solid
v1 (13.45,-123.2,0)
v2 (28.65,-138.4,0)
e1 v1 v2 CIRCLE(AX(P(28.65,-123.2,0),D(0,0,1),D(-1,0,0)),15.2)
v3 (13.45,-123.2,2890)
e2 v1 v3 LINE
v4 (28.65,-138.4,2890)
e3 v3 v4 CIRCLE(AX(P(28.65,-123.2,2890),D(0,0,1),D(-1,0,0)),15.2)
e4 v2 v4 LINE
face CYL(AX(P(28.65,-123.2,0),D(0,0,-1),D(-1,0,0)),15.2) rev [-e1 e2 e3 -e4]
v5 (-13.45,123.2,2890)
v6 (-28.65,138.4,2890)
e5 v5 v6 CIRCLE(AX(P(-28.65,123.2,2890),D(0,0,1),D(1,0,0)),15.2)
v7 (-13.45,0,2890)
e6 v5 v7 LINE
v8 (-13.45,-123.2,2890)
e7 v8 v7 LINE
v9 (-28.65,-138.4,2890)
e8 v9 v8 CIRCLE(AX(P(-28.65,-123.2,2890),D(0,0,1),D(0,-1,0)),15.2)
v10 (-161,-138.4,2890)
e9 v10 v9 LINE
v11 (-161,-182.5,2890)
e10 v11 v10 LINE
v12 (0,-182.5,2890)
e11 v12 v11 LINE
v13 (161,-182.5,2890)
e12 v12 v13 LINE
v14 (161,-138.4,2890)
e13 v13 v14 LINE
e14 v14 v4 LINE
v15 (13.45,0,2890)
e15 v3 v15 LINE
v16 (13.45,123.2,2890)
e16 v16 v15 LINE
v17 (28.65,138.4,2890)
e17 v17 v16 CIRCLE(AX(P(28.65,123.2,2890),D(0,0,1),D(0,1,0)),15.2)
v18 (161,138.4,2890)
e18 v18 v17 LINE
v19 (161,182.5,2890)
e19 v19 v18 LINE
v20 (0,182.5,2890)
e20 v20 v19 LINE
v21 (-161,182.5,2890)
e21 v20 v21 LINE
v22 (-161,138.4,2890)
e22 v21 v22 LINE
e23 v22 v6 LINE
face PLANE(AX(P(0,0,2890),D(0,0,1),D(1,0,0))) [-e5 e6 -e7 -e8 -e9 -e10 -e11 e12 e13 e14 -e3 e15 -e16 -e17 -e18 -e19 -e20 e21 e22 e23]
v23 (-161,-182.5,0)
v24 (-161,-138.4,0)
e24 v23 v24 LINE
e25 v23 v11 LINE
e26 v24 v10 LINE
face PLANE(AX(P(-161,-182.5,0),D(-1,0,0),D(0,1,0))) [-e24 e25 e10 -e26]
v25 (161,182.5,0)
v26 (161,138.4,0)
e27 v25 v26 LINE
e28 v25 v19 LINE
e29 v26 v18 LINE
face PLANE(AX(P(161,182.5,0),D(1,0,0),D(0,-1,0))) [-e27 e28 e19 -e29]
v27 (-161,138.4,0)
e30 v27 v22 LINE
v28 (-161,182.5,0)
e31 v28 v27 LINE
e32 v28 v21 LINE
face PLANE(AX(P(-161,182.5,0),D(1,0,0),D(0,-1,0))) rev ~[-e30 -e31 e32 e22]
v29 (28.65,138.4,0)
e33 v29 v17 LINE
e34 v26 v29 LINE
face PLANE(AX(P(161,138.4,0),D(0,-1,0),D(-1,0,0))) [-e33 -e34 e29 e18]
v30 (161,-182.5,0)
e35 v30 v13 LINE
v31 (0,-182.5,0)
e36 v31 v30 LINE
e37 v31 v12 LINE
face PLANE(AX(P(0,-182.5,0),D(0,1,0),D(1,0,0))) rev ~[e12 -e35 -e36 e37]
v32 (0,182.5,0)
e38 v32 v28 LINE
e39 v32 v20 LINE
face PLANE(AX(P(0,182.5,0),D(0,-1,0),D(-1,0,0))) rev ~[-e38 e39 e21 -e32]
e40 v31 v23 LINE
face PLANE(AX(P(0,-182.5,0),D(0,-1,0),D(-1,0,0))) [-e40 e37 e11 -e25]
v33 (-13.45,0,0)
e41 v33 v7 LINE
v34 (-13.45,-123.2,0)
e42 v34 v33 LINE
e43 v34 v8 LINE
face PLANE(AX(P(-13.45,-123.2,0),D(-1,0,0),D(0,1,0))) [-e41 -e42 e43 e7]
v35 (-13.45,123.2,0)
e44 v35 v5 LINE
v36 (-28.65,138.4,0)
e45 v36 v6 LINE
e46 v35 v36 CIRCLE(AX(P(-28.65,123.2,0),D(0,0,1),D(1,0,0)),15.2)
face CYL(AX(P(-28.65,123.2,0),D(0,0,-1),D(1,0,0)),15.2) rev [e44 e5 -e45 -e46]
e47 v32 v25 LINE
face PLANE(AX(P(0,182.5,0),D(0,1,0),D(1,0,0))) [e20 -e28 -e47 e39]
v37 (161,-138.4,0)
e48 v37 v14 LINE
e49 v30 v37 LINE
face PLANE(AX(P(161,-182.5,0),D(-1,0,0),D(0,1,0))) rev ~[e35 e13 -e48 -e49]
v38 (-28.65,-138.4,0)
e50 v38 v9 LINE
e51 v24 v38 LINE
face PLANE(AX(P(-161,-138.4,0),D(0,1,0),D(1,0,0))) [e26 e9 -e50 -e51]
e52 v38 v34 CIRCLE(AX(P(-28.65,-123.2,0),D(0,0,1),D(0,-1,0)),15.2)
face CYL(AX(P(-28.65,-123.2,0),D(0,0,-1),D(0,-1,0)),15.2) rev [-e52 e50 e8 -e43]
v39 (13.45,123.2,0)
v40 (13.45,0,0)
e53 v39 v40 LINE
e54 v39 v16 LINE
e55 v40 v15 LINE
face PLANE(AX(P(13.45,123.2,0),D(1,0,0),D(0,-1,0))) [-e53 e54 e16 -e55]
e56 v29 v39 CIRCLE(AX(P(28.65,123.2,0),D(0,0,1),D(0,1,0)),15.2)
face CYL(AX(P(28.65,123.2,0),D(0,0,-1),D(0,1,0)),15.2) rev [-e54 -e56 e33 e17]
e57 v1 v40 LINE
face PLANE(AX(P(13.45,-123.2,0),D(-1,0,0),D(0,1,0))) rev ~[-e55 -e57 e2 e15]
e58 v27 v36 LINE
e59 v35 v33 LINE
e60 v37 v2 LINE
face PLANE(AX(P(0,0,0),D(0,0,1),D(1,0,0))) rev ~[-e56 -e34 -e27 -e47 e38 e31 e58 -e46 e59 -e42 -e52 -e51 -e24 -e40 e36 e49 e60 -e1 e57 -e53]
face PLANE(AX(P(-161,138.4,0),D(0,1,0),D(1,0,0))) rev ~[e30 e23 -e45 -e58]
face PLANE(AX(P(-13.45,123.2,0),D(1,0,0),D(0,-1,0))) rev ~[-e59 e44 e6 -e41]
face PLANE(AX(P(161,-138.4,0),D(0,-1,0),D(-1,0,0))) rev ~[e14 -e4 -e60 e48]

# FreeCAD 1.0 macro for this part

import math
import FreeCAD as App
import Part
import Sketcher

doc = App.newDocument("Part")
body = doc.addObject("PartDesign::Body", "Body")

# Sketch on XY plane
sketch1 = doc.addObject("Sketcher::SketchObject", "Sketch")
body.addObject(sketch1)
sketch1.AttachmentSupport = (doc.XY_Plane, [""])
sketch1.MapMode = "FlatFace"
sketch1.addGeometry([
    Part.LineSegment(App.Vector(-161, -138, 0), App.Vector(-161, -182, 0)),  # 0
    Part.LineSegment(App.Vector(-161, -182, 0), App.Vector(161, -182, 0)),  # 1
    Part.LineSegment(App.Vector(161, -182, 0), App.Vector(161, -138, 0)),  # 2
    Part.LineSegment(App.Vector(161, -138, 0), App.Vector(29, -138, 0)),  # 3
    Part.ArcOfCircle(Part.Circle(App.Vector(29, -123, 0), App.Vector(0, 0, 1), 15), math.radians(180), math.radians(270)),  # 4
    Part.LineSegment(App.Vector(13, -123, 0), App.Vector(13, 123, 0)),  # 5
    Part.ArcOfCircle(Part.Circle(App.Vector(29, 123, 0), App.Vector(0, 0, 1), 15), math.radians(90), math.radians(180)),  # 6
    Part.LineSegment(App.Vector(29, 138, 0), App.Vector(161, 138, 0)),  # 7
    Part.LineSegment(App.Vector(161, 138, 0), App.Vector(161, 182, 0)),  # 8
    Part.LineSegment(App.Vector(161, 182, 0), App.Vector(-161, 182, 0)),  # 9
    Part.LineSegment(App.Vector(-161, 182, 0), App.Vector(-161, 138, 0)),  # 10
    Part.LineSegment(App.Vector(-161, 138, 0), App.Vector(-29, 138, 0)),  # 11
    Part.ArcOfCircle(Part.Circle(App.Vector(-29, 123, 0), App.Vector(0, 0, 1), 15), math.radians(0), math.radians(90)),  # 12
    Part.LineSegment(App.Vector(-13, 123, 0), App.Vector(-13, -123, 0)),  # 13
    Part.ArcOfCircle(Part.Circle(App.Vector(-29, -123, 0), App.Vector(0, 0, 1), 15), math.radians(-90), math.radians(0)),  # 14
    Part.LineSegment(App.Vector(-29, -138, 0), App.Vector(-161, -138, 0)),  # 15
], False)
sketch1.addConstraint([
    Sketcher.Constraint("Coincident", 0, 2, 1, 1),
    Sketcher.Constraint("Coincident", 1, 2, 2, 1),
    Sketcher.Constraint("Coincident", 2, 2, 3, 1),
    Sketcher.Constraint("Tangent", 3, 2, 4, 2),
    Sketcher.Constraint("Tangent", 4, 1, 5, 1),
    Sketcher.Constraint("Tangent", 5, 2, 6, 2),
    Sketcher.Constraint("Tangent", 6, 1, 7, 1),
    Sketcher.Constraint("Coincident", 7, 2, 8, 1),
    Sketcher.Constraint("Coincident", 8, 2, 9, 1),
    Sketcher.Constraint("Coincident", 9, 2, 10, 1),
    Sketcher.Constraint("Coincident", 10, 2, 11, 1),
    Sketcher.Constraint("Tangent", 11, 2, 12, 2),
    Sketcher.Constraint("Tangent", 12, 1, 13, 1),
    Sketcher.Constraint("Tangent", 13, 2, 14, 2),
    Sketcher.Constraint("Tangent", 14, 1, 15, 1),
    Sketcher.Constraint("Coincident", 15, 2, 0, 1),
    Sketcher.Constraint("Vertical", 0),
    Sketcher.Constraint("Horizontal", 1),
    Sketcher.Constraint("Vertical", 2),
    Sketcher.Constraint("Horizontal", 3),
    Sketcher.Constraint("Vertical", 5),
    Sketcher.Constraint("Horizontal", 7),
    Sketcher.Constraint("Vertical", 8),
    Sketcher.Constraint("Horizontal", 9),
    Sketcher.Constraint("Vertical", 10),
    Sketcher.Constraint("Horizontal", 11),
    Sketcher.Constraint("Vertical", 13),
    Sketcher.Constraint("Horizontal", 15),
    Sketcher.Constraint("Equal", 4, 6),
    Sketcher.Constraint("Equal", 6, 12),
    Sketcher.Constraint("Equal", 12, 14),
    Sketcher.Constraint("Symmetric", 4, 3, 12, 3, -1, 1),
    Sketcher.Constraint("Symmetric", 0, 2, 8, 2, -1, 1),
    Sketcher.Constraint("Symmetric", 7, 2, 10, 2, -2),
    Sketcher.Constraint("Symmetric", 2, 2, 15, 2, -2),
    Sketcher.Constraint("Radius", 4, 15.2),
    Sketcher.Constraint("DistanceY", 0, 2, 0, 1, 44.1),
    Sketcher.Constraint("DistanceX", 0, 2, -1, 1, 161.0),
    Sketcher.Constraint("DistanceY", 0, 2, -1, 1, 182.5),
    Sketcher.Constraint("DistanceX", -1, 1, 4, 1, 13.45),
])
pad1 = doc.addObject("PartDesign::Pad", "Pad")
body.addObject(pad1)
pad1.Profile = sketch1
pad1.Length = 2890

doc.recompute()
